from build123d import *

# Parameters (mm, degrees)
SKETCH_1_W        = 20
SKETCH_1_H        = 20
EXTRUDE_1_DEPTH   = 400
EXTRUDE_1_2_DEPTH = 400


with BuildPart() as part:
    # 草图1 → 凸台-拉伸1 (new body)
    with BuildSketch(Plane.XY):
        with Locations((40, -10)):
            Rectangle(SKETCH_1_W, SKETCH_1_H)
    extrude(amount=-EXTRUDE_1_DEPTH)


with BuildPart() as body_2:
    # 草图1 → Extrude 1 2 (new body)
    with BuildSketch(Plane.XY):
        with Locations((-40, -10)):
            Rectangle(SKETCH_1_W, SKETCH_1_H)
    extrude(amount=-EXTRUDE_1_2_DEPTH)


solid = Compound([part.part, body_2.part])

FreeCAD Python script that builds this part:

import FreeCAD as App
import Part
import Sketcher

V = App.Vector


def add_polygon(sketch, points):
    """Adds a closed chain of lines whose ends are joined by coincident constraints."""
    first, n = sketch.GeometryCount, len(points)
    for a, b in zip(points, points[1:] + points[:1]):
        sketch.addGeometry(Part.LineSegment(App.Vector(*a, 0), App.Vector(*b, 0)), False)
    for i in range(n):
        sketch.addConstraint(Sketcher.Constraint("Coincident", first + i, 2, first + (i + 1) % n, 1))

doc = App.newDocument("Part")
body = doc.addObject("PartDesign::Body", "Body")

# Sketch on XY plane
sketch1 = doc.addObject("Sketcher::SketchObject", "Sketch")
body.addObject(sketch1)
sketch1.AttachmentSupport = (doc.XY_Plane, [""])
sketch1.MapMode = "FlatFace"
add_polygon(sketch1, [(30, 0), (30, -20), (50, -20), (50, 0)])  # lines 0-3
sketch1.addConstraint([
    Sketcher.Constraint("Vertical", 0),
    Sketcher.Constraint("Horizontal", 1),
    Sketcher.Constraint("Vertical", 2),
    Sketcher.Constraint("Horizontal", 3),
    Sketcher.Constraint("PointOnObject", 2, 2, -1),
    Sketcher.Constraint("Equal", 3, 0),
    Sketcher.Constraint("DistanceX", 1, 1, 1, 2, 20.0),
    Sketcher.Constraint("DistanceX", -1, 1, 0, 2, 30.0),
])
pad1 = doc.addObject("PartDesign::Pad", "Pad")
body.addObject(pad1)
pad1.Profile = sketch1
pad1.Length = 400
pad1.Reversed = True
body2 = doc.addObject("PartDesign::Body", "Body001")

# Sketch on XY plane
sketch2 = doc.addObject("Sketcher::SketchObject", "Sketch001")
body2.addObject(sketch2)
sketch2.AttachmentSupport = (doc.getObject("XY_Plane001"), [""])
sketch2.MapMode = "FlatFace"
add_polygon(sketch2, [(-50, 0), (-50, -20), (-30, -20), (-30, 0)])  # lines 0-3
sketch2.addConstraint([
    Sketcher.Constraint("Vertical", 0),
    Sketcher.Constraint("Horizontal", 1),
    Sketcher.Constraint("Vertical", 2),
    Sketcher.Constraint("Horizontal", 3),
    Sketcher.Constraint("PointOnObject", 2, 2, -1),
    Sketcher.Constraint("Equal", 3, 0),
    Sketcher.Constraint("DistanceX", 1, 1, 1, 2, 20.0),
    Sketcher.Constraint("DistanceX", 0, 2, -1, 1, 50.0),
])
pad2 = doc.addObject("PartDesign::Pad", "Pad001")
body2.addObject(pad2)
pad2.Profile = sketch2
pad2.Length = 400
pad2.Reversed = True

doc.recompute()
